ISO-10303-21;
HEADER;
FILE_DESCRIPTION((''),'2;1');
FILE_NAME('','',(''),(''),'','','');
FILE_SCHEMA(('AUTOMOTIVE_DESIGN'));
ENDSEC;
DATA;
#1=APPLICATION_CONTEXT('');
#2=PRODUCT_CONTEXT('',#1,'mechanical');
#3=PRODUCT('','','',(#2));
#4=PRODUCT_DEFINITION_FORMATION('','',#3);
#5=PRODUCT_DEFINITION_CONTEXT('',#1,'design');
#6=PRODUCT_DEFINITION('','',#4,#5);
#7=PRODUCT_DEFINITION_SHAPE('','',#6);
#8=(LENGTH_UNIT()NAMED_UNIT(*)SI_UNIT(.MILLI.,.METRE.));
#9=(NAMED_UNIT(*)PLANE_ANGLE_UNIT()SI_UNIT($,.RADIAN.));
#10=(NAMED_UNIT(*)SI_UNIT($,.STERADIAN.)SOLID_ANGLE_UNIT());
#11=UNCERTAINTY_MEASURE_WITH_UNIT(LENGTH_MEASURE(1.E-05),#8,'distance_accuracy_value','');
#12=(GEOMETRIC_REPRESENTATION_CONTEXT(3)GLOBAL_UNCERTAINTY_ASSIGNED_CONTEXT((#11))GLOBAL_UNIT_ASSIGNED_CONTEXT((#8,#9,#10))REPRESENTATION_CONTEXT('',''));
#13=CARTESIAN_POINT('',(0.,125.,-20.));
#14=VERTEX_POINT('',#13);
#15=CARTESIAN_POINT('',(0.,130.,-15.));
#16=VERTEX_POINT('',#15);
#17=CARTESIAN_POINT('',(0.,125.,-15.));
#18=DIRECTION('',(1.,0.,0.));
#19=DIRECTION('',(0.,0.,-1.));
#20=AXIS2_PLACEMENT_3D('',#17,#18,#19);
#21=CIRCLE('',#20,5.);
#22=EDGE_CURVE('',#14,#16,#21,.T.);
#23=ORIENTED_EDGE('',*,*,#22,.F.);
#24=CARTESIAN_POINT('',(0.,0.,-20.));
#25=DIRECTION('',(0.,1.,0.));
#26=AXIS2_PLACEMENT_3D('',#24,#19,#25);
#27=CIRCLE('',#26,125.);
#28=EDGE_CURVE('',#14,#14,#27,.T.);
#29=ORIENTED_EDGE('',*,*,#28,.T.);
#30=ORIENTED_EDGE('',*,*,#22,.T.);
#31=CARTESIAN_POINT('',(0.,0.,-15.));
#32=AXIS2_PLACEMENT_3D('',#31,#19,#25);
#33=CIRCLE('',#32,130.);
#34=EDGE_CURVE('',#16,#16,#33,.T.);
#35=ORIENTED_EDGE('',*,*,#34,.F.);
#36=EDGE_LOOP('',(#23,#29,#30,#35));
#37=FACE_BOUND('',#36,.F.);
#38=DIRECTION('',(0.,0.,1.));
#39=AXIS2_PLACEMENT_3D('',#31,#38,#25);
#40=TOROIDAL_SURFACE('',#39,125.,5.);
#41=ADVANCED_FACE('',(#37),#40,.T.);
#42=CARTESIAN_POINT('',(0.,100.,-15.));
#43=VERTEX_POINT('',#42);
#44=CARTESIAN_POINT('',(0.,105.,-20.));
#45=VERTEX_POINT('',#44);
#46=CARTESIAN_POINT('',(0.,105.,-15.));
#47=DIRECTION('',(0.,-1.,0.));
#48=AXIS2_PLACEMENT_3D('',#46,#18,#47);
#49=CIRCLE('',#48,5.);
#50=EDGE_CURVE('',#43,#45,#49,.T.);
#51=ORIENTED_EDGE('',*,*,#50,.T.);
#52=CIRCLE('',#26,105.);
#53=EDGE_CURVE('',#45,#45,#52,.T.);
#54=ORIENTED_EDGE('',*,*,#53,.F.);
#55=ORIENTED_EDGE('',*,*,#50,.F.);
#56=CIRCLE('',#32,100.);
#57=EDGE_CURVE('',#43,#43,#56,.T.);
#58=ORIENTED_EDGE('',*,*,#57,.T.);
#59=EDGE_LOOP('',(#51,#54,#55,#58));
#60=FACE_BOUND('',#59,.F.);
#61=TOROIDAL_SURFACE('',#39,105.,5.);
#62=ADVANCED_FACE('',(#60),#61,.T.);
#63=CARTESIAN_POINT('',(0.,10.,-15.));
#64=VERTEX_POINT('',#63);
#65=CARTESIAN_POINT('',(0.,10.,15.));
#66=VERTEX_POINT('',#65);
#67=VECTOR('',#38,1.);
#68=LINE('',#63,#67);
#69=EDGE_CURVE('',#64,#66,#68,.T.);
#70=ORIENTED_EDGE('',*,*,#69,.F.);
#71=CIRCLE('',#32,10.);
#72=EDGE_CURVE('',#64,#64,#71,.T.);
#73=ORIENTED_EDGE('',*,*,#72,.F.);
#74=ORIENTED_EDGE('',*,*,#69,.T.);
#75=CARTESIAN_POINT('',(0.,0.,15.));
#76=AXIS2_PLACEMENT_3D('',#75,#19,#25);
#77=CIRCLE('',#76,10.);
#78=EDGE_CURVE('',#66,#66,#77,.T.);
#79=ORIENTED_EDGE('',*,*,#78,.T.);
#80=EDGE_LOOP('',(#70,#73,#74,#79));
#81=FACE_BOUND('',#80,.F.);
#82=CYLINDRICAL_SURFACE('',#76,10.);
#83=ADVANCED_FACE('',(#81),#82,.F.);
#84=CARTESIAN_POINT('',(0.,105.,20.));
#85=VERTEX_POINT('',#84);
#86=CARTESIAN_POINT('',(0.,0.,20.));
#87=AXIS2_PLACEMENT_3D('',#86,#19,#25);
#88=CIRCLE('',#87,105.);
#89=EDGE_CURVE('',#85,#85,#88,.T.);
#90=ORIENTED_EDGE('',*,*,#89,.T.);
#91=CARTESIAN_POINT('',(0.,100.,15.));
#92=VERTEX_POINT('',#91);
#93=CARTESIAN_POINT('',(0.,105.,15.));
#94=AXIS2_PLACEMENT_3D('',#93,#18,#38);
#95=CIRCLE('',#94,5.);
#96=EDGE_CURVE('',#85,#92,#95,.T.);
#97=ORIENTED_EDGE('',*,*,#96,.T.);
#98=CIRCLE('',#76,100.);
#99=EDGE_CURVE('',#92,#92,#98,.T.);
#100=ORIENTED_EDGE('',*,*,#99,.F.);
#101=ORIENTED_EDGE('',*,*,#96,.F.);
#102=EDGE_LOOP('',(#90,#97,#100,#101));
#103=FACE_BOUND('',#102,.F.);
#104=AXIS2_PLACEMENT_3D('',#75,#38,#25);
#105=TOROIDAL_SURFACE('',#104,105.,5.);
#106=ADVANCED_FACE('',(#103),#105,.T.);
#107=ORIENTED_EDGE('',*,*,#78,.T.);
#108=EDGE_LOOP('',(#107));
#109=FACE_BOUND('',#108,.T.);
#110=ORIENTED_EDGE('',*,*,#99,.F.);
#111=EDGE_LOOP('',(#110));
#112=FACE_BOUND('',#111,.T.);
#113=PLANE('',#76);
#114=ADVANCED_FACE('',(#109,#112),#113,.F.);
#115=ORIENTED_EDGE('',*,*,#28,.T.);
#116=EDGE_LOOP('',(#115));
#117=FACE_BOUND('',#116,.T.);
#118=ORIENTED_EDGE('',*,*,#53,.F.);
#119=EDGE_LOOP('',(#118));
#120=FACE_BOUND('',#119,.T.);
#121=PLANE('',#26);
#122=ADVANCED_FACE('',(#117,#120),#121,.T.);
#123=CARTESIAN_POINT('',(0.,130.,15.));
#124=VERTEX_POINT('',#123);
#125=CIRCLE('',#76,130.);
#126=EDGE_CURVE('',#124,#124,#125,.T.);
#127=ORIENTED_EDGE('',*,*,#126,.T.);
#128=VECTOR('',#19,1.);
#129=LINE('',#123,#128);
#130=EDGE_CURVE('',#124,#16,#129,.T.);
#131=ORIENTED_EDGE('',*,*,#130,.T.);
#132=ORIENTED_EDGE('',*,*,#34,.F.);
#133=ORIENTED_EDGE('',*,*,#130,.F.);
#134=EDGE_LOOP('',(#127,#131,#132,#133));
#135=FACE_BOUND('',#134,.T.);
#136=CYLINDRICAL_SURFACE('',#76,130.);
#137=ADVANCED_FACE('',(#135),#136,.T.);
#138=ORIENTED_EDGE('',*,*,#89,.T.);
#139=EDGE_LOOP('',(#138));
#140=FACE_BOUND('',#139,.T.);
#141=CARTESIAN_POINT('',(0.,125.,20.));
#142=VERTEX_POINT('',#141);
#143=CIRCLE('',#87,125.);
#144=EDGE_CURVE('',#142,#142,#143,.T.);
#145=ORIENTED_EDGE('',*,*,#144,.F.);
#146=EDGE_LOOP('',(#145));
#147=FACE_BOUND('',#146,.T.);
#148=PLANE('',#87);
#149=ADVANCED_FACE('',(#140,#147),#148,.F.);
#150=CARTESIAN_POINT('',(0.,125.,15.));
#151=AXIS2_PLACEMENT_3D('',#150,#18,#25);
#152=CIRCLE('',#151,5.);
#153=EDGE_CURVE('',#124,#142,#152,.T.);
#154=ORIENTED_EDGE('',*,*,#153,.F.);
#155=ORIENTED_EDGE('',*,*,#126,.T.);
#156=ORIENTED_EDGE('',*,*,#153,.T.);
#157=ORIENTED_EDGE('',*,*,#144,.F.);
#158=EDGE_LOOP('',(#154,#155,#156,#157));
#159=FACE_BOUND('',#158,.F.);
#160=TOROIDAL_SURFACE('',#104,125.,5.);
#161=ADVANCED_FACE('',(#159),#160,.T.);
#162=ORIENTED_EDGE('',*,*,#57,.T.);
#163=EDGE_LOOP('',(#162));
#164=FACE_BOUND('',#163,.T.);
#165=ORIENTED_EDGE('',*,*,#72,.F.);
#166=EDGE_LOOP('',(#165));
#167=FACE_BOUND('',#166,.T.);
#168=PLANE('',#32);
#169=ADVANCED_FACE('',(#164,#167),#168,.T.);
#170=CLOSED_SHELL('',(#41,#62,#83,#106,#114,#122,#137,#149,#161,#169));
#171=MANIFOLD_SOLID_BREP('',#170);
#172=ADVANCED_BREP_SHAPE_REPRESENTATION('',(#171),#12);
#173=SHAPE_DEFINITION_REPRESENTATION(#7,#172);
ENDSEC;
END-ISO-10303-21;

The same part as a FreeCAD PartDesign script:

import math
import FreeCAD as App
import Part
import Sketcher
Q = App.Units.Quantity

doc = App.newDocument("Part")
body = doc.addObject("PartDesign::Body", "Body")

# Sketch on YZ plane
sketch1 = doc.addObject("Sketcher::SketchObject", "Sketch")
body.addObject(sketch1)
sketch1.AttachmentSupport = (doc.YZ_Plane, [""])
sketch1.MapMode = "FlatFace"
sketch1.addGeometry([
    Part.LineSegment(App.Vector(100, 15, 0), App.Vector(10, 15, 0)),  # 0
    Part.LineSegment(App.Vector(10, 15, 0), App.Vector(10, -15, 0)),  # 1
    Part.LineSegment(App.Vector(10, -15, 0), App.Vector(100, -15, 0)),  # 2
    Part.ArcOfCircle(Part.Circle(App.Vector(105, -15, 0), App.Vector(0, 0, 1), 5), math.radians(180), math.radians(270)),  # 3
    Part.LineSegment(App.Vector(105, -20, 0), App.Vector(125, -20, 0)),  # 4
    Part.ArcOfCircle(Part.Circle(App.Vector(125, -15, 0), App.Vector(0, 0, 1), 5), math.radians(-90), math.radians(0)),  # 5
    Part.LineSegment(App.Vector(130, -15, 0), App.Vector(130, 15, 0)),  # 6
    Part.ArcOfCircle(Part.Circle(App.Vector(125, 15, 0), App.Vector(0, 0, 1), 5), math.radians(0), math.radians(90)),  # 7
    Part.LineSegment(App.Vector(125, 20, 0), App.Vector(105, 20, 0)),  # 8
    Part.ArcOfCircle(Part.Circle(App.Vector(105, 15, 0), App.Vector(0, 0, 1), 5), math.radians(90), math.radians(180)),  # 9
], False)
sketch1.addConstraint([
    Sketcher.Constraint("Coincident", 0, 2, 1, 1),
    Sketcher.Constraint("Coincident", 1, 2, 2, 1),
    Sketcher.Constraint("Coincident", 2, 2, 3, 1),
    Sketcher.Constraint("Tangent", 3, 2, 4, 1),
    Sketcher.Constraint("Tangent", 4, 2, 5, 1),
    Sketcher.Constraint("Tangent", 5, 2, 6, 1),
    Sketcher.Constraint("Tangent", 6, 2, 7, 1),
    Sketcher.Constraint("Tangent", 7, 2, 8, 1),
    Sketcher.Constraint("Tangent", 8, 2, 9, 1),
    Sketcher.Constraint("Coincident", 9, 2, 0, 1),
    Sketcher.Constraint("Horizontal", 0),
    Sketcher.Constraint("Vertical", 1),
    Sketcher.Constraint("Horizontal", 2),
    Sketcher.Constraint("Horizontal", 4),
    Sketcher.Constraint("Vertical", 6),
    Sketcher.Constraint("Horizontal", 8),
    Sketcher.Constraint("Equal", 3, 5),
    Sketcher.Constraint("Equal", 5, 7),
    Sketcher.Constraint("Equal", 7, 9),
    Sketcher.Constraint("Symmetric", 3, 3, 9, 3, -1),
    Sketcher.Constraint("Horizontal", 9, 3, 0, 2),
    Sketcher.Constraint("Horizontal", 5, 3, 1, 2),
    Sketcher.Constraint("Radius", 3, Q("5 mm")),
    Sketcher.Constraint("DistanceX", 4, 1, 4, 2, Q("20 mm")),
    Sketcher.Constraint("DistanceY", 1, 2, 1, 1, Q("30 mm")),
    Sketcher.Constraint("DistanceX", 0, 2, 0, 1, Q("90 mm")),
    Sketcher.Constraint("DistanceX", -1, 1, 3, 3, Q("105 mm")),
])
revolution = doc.addObject("PartDesign::Revolution", "Revolution")
body.addObject(revolution)
revolution.Profile = sketch1
revolution.ReferenceAxis = (sketch1, ["V_Axis"])
revolution.Angle = 360

doc.recompute()
